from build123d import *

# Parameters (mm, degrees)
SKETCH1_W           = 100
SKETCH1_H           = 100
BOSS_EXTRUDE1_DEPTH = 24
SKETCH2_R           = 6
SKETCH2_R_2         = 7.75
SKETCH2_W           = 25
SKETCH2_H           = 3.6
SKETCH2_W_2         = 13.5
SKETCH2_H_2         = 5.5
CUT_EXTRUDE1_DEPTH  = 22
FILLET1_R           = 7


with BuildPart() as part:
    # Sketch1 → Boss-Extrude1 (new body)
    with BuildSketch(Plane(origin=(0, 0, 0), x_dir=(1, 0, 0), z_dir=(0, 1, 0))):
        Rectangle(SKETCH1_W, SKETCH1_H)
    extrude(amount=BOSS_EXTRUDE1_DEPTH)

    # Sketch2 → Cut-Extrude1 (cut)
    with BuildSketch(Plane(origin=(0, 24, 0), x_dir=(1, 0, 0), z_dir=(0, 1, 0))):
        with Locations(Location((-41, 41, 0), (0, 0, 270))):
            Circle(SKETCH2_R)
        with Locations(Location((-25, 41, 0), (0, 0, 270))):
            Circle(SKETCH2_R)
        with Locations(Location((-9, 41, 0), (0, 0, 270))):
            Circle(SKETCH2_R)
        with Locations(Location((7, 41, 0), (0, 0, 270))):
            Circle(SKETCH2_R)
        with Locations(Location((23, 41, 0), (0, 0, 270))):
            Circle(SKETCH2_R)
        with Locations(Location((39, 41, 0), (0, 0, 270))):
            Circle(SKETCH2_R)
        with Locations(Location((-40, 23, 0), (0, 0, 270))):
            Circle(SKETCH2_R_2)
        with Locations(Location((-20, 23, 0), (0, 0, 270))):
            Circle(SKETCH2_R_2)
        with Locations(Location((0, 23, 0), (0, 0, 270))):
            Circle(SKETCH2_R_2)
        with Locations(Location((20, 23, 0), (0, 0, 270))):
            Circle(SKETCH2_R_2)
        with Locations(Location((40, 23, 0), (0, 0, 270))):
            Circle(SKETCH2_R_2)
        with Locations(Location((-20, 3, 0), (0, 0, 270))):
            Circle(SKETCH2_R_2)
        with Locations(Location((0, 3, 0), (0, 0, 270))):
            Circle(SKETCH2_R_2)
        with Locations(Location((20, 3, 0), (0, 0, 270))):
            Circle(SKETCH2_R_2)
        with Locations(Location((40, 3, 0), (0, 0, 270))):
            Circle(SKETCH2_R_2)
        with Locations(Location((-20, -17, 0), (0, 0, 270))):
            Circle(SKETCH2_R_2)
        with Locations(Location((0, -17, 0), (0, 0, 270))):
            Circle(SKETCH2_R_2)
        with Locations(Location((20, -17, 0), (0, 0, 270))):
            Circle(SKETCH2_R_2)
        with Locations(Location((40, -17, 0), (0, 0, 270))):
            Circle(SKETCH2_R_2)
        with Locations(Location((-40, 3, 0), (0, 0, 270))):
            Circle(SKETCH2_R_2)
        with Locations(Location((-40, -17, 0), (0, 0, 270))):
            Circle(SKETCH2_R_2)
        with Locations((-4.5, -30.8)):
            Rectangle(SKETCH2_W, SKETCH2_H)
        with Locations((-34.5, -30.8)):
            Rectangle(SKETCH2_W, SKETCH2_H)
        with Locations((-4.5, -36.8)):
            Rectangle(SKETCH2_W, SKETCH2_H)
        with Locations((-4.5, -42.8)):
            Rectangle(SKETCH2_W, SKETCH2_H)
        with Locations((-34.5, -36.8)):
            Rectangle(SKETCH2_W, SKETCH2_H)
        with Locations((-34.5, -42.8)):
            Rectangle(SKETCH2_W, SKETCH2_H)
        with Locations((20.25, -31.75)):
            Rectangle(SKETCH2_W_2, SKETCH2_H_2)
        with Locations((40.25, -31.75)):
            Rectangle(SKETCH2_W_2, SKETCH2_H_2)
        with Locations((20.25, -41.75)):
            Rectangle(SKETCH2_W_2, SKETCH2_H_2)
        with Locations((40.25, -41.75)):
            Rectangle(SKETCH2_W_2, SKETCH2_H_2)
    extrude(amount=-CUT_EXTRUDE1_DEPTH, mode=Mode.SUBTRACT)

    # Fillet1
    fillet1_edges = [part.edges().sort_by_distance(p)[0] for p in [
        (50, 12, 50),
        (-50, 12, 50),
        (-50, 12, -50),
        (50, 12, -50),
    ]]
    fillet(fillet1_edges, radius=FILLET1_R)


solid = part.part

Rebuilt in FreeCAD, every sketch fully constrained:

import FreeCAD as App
import Part
import Sketcher


def edges_at(feature, points):
    """Names of the edges that pass closest to the given points."""
    edges = feature.Shape.Edges
    near = lambda p: min(range(len(edges)), key=lambda i: edges[i].distToShape(Part.Vertex(*p))[0])
    return sorted({f"Edge{near(p) + 1}" for p in points})

doc = App.newDocument("Part")
params = doc.addObject("Spreadsheet::Sheet", "Params")
for row, (alias, value) in enumerate([
    ("sketch1_width", "100 mm"),
    ("pad1_length", "24 mm"),
    ("sketch2_diameter", "12 mm"),
    ("sketch2_diameter2", "15.5 mm"),
    ("sketch2_width", "25 mm"),
    ("sketch2_width2", "13.5 mm"),
    ("sketch2_height", "3.6 mm"),
    ("pocket1_length", "22 mm"),
    ("fillet_radius", "7 mm"),
], start=1):
    params.set(f"A{row}", alias)
    params.set(f"B{row}", "=" + value)
    params.setAlias(f"B{row}", alias)

body = doc.addObject("PartDesign::Body", "Body")

sketch1 = doc.addObject("Sketcher::SketchObject", "Sketch")
body.addObject(sketch1)
sketch1.AttachmentSupport = (doc.XZ_Plane, [""])
sketch1.MapMode = "FlatFace"
sketch1.addGeometry(Part.LineSegment(App.Vector(-50, -50, 0), App.Vector(-50, 50, 0)), False)
sketch1.addGeometry(Part.LineSegment(App.Vector(-50, 50, 0), App.Vector(50, 50, 0)), False)
sketch1.addGeometry(Part.LineSegment(App.Vector(50, 50, 0), App.Vector(50, -50, 0)), False)
sketch1.addGeometry(Part.LineSegment(App.Vector(50, -50, 0), App.Vector(-50, -50, 0)), False)
sketch1.addConstraint(Sketcher.Constraint("Coincident", 0, 2, 1, 1))
sketch1.addConstraint(Sketcher.Constraint("Coincident", 1, 2, 2, 1))
sketch1.addConstraint(Sketcher.Constraint("Coincident", 2, 2, 3, 1))
sketch1.addConstraint(Sketcher.Constraint("Coincident", 3, 2, 0, 1))
sketch1.addConstraint(Sketcher.Constraint("Vertical", 0))
sketch1.addConstraint(Sketcher.Constraint("Horizontal", 1))
sketch1.addConstraint(Sketcher.Constraint("Vertical", 2))
sketch1.addConstraint(Sketcher.Constraint("Horizontal", 3))
sketch1.addConstraint(Sketcher.Constraint("Symmetric", 0, 2, 2, 2, -1, 1))
sketch1.addConstraint(Sketcher.Constraint("Equal", 3, 0))
sketch1.addConstraint(Sketcher.Constraint("DistanceX", 1, 1, 1, 2, 100.0))
sketch1.setExpression("Constraints[10]", "Params.sketch1_width")
pad1 = doc.addObject("PartDesign::Pad", "Pad")
body.addObject(pad1)
pad1.Profile = sketch1
pad1.setExpression("Length", "Params.pad1_length")
pad1.Reversed = True

sketch2 = doc.addObject("Sketcher::SketchObject", "Sketch001")
body.addObject(sketch2)
sketch2.AttachmentSupport = (doc.XZ_Plane, [""])
sketch2.MapMode = "FlatFace"
sketch2.AttachmentOffset = App.Placement(App.Vector(0, 0, -24), App.Rotation())
sketch2.addGeometry(Part.Circle(App.Vector(-41, -41, 0), App.Vector(0, 0, 1), 6), False)
sketch2.addGeometry(Part.Circle(App.Vector(-25, -41, 0), App.Vector(0, 0, 1), 6), False)
sketch2.addGeometry(Part.Circle(App.Vector(-9, -41, 0), App.Vector(0, 0, 1), 6), False)
sketch2.addGeometry(Part.Circle(App.Vector(7, -41, 0), App.Vector(0, 0, 1), 6), False)
sketch2.addGeometry(Part.Circle(App.Vector(23, -41, 0), App.Vector(0, 0, 1), 6), False)
sketch2.addGeometry(Part.Circle(App.Vector(39, -41, 0), App.Vector(0, 0, 1), 6), False)
sketch2.addGeometry(Part.Circle(App.Vector(-40, -23, 0), App.Vector(0, 0, 1), 7.8), False)
sketch2.addGeometry(Part.Circle(App.Vector(-20, -23, 0), App.Vector(0, 0, 1), 7.8), False)
sketch2.addGeometry(Part.Circle(App.Vector(0, -23, 0), App.Vector(0, 0, 1), 7.8), False)
sketch2.addGeometry(Part.Circle(App.Vector(20, -23, 0), App.Vector(0, 0, 1), 7.8), False)
sketch2.addGeometry(Part.Circle(App.Vector(40, -23, 0), App.Vector(0, 0, 1), 7.8), False)
sketch2.addGeometry(Part.Circle(App.Vector(-20, -3, 0), App.Vector(0, 0, 1), 7.8), False)
sketch2.addGeometry(Part.Circle(App.Vector(0, -3, 0), App.Vector(0, 0, 1), 7.8), False)
sketch2.addGeometry(Part.Circle(App.Vector(20, -3, 0), App.Vector(0, 0, 1), 7.8), False)
sketch2.addGeometry(Part.Circle(App.Vector(40, -3, 0), App.Vector(0, 0, 1), 7.8), False)
sketch2.addGeometry(Part.Circle(App.Vector(-20, 17, 0), App.Vector(0, 0, 1), 7.8), False)
sketch2.addGeometry(Part.Circle(App.Vector(0, 17, 0), App.Vector(0, 0, 1), 7.8), False)
sketch2.addGeometry(Part.Circle(App.Vector(20, 17, 0), App.Vector(0, 0, 1), 7.8), False)
sketch2.addGeometry(Part.Circle(App.Vector(40, 17, 0), App.Vector(0, 0, 1), 7.8), False)
sketch2.addGeometry(Part.Circle(App.Vector(-40, -3, 0), App.Vector(0, 0, 1), 7.8), False)
sketch2.addGeometry(Part.Circle(App.Vector(-40, 17, 0), App.Vector(0, 0, 1), 7.8), False)
sketch2.addGeometry(Part.LineSegment(App.Vector(-17, 29, 0), App.Vector(-17, 32.6, 0)), False)
sketch2.addGeometry(Part.LineSegment(App.Vector(-17, 32.6, 0), App.Vector(8, 32.6, 0)), False)
sketch2.addGeometry(Part.LineSegment(App.Vector(8, 32.6, 0), App.Vector(8, 29, 0)), False)
sketch2.addGeometry(Part.LineSegment(App.Vector(8, 29, 0), App.Vector(-17, 29, 0)), False)
sketch2.addGeometry(Part.LineSegment(App.Vector(-47, 29, 0), App.Vector(-47, 32.6, 0)), False)
sketch2.addGeometry(Part.LineSegment(App.Vector(-47, 32.6, 0), App.Vector(-22, 32.6, 0)), False)
sketch2.addGeometry(Part.LineSegment(App.Vector(-22, 32.6, 0), App.Vector(-22, 29, 0)), False)
sketch2.addGeometry(Part.LineSegment(App.Vector(-22, 29, 0), App.Vector(-47, 29, 0)), False)
sketch2.addGeometry(Part.LineSegment(App.Vector(-17, 35, 0), App.Vector(-17, 38.6, 0)), False)
sketch2.addGeometry(Part.LineSegment(App.Vector(-17, 38.6, 0), App.Vector(8, 38.6, 0)), False)
sketch2.addGeometry(Part.LineSegment(App.Vector(8, 38.6, 0), App.Vector(8, 35, 0)), False)
sketch2.addGeometry(Part.LineSegment(App.Vector(8, 35, 0), App.Vector(-17, 35, 0)), False)
sketch2.addGeometry(Part.LineSegment(App.Vector(-17, 41, 0), App.Vector(-17, 44.6, 0)), False)
sketch2.addGeometry(Part.LineSegment(App.Vector(-17, 44.6, 0), App.Vector(8, 44.6, 0)), False)
sketch2.addGeometry(Part.LineSegment(App.Vector(8, 44.6, 0), App.Vector(8, 41, 0)), False)
sketch2.addGeometry(Part.LineSegment(App.Vector(8, 41, 0), App.Vector(-17, 41, 0)), False)
sketch2.addGeometry(Part.LineSegment(App.Vector(-47, 35, 0), App.Vector(-47, 38.6, 0)), False)
sketch2.addGeometry(Part.LineSegment(App.Vector(-47, 38.6, 0), App.Vector(-22, 38.6, 0)), False)
sketch2.addGeometry(Part.LineSegment(App.Vector(-22, 38.6, 0), App.Vector(-22, 35, 0)), False)
sketch2.addGeometry(Part.LineSegment(App.Vector(-22, 35, 0), App.Vector(-47, 35, 0)), False)
sketch2.addGeometry(Part.LineSegment(App.Vector(-47, 41, 0), App.Vector(-47, 44.6, 0)), False)
sketch2.addGeometry(Part.LineSegment(App.Vector(-47, 44.6, 0), App.Vector(-22, 44.6, 0)), False)
sketch2.addGeometry(Part.LineSegment(App.Vector(-22, 44.6, 0), App.Vector(-22, 41, 0)), False)
sketch2.addGeometry(Part.LineSegment(App.Vector(-22, 41, 0), App.Vector(-47, 41, 0)), False)
sketch2.addGeometry(Part.LineSegment(App.Vector(13.5, 29, 0), App.Vector(13.5, 34.5, 0)), False)
sketch2.addGeometry(Part.LineSegment(App.Vector(13.5, 34.5, 0), App.Vector(27, 34.5, 0)), False)
sketch2.addGeometry(Part.LineSegment(App.Vector(27, 34.5, 0), App.Vector(27, 29, 0)), False)
sketch2.addGeometry(Part.LineSegment(App.Vector(27, 29, 0), App.Vector(13.5, 29, 0)), False)
sketch2.addGeometry(Part.LineSegment(App.Vector(33.5, 29, 0), App.Vector(33.5, 34.5, 0)), False)
sketch2.addGeometry(Part.LineSegment(App.Vector(33.5, 34.5, 0), App.Vector(47, 34.5, 0)), False)
sketch2.addGeometry(Part.LineSegment(App.Vector(47, 34.5, 0), App.Vector(47, 29, 0)), False)
sketch2.addGeometry(Part.LineSegment(App.Vector(47, 29, 0), App.Vector(33.5, 29, 0)), False)
sketch2.addGeometry(Part.LineSegment(App.Vector(13.5, 39, 0), App.Vector(13.5, 44.5, 0)), False)
sketch2.addGeometry(Part.LineSegment(App.Vector(13.5, 44.5, 0), App.Vector(27, 44.5, 0)), False)
sketch2.addGeometry(Part.LineSegment(App.Vector(27, 44.5, 0), App.Vector(27, 39, 0)), False)
sketch2.addGeometry(Part.LineSegment(App.Vector(27, 39, 0), App.Vector(13.5, 39, 0)), False)
sketch2.addGeometry(Part.LineSegment(App.Vector(33.5, 39, 0), App.Vector(33.5, 44.5, 0)), False)
sketch2.addGeometry(Part.LineSegment(App.Vector(33.5, 44.5, 0), App.Vector(47, 44.5, 0)), False)
sketch2.addGeometry(Part.LineSegment(App.Vector(47, 44.5, 0), App.Vector(47, 39, 0)), False)
sketch2.addGeometry(Part.LineSegment(App.Vector(47, 39, 0), App.Vector(33.5, 39, 0)), False)
sketch2.addConstraint(Sketcher.Constraint("Coincident", 21, 2, 22, 1))
sketch2.addConstraint(Sketcher.Constraint("Coincident", 22, 2, 23, 1))
sketch2.addConstraint(Sketcher.Constraint("Coincident", 23, 2, 24, 1))
sketch2.addConstraint(Sketcher.Constraint("Coincident", 24, 2, 21, 1))
sketch2.addConstraint(Sketcher.Constraint("Coincident", 25, 2, 26, 1))
sketch2.addConstraint(Sketcher.Constraint("Coincident", 26, 2, 27, 1))
sketch2.addConstraint(Sketcher.Constraint("Coincident", 27, 2, 28, 1))
sketch2.addConstraint(Sketcher.Constraint("Coincident", 28, 2, 25, 1))
sketch2.addConstraint(Sketcher.Constraint("Coincident", 29, 2, 30, 1))
sketch2.addConstraint(Sketcher.Constraint("Coincident", 30, 2, 31, 1))
sketch2.addConstraint(Sketcher.Constraint("Coincident", 31, 2, 32, 1))
sketch2.addConstraint(Sketcher.Constraint("Coincident", 32, 2, 29, 1))
sketch2.addConstraint(Sketcher.Constraint("Coincident", 33, 2, 34, 1))
sketch2.addConstraint(Sketcher.Constraint("Coincident", 34, 2, 35, 1))
sketch2.addConstraint(Sketcher.Constraint("Coincident", 35, 2, 36, 1))
sketch2.addConstraint(Sketcher.Constraint("Coincident", 36, 2, 33, 1))
sketch2.addConstraint(Sketcher.Constraint("Coincident", 37, 2, 38, 1))
sketch2.addConstraint(Sketcher.Constraint("Coincident", 38, 2, 39, 1))
sketch2.addConstraint(Sketcher.Constraint("Coincident", 39, 2, 40, 1))
sketch2.addConstraint(Sketcher.Constraint("Coincident", 40, 2, 37, 1))
sketch2.addConstraint(Sketcher.Constraint("Coincident", 41, 2, 42, 1))
sketch2.addConstraint(Sketcher.Constraint("Coincident", 42, 2, 43, 1))
sketch2.addConstraint(Sketcher.Constraint("Coincident", 43, 2, 44, 1))
sketch2.addConstraint(Sketcher.Constraint("Coincident", 44, 2, 41, 1))
sketch2.addConstraint(Sketcher.Constraint("Coincident", 45, 2, 46, 1))
sketch2.addConstraint(Sketcher.Constraint("Coincident", 46, 2, 47, 1))
sketch2.addConstraint(Sketcher.Constraint("Coincident", 47, 2, 48, 1))
sketch2.addConstraint(Sketcher.Constraint("Coincident", 48, 2, 45, 1))
sketch2.addConstraint(Sketcher.Constraint("Coincident", 49, 2, 50, 1))
sketch2.addConstraint(Sketcher.Constraint("Coincident", 50, 2, 51, 1))
sketch2.addConstraint(Sketcher.Constraint("Coincident", 51, 2, 52, 1))
sketch2.addConstraint(Sketcher.Constraint("Coincident", 52, 2, 49, 1))
sketch2.addConstraint(Sketcher.Constraint("Coincident", 53, 2, 54, 1))
sketch2.addConstraint(Sketcher.Constraint("Coincident", 54, 2, 55, 1))
sketch2.addConstraint(Sketcher.Constraint("Coincident", 55, 2, 56, 1))
sketch2.addConstraint(Sketcher.Constraint("Coincident", 56, 2, 53, 1))
sketch2.addConstraint(Sketcher.Constraint("Coincident", 57, 2, 58, 1))
sketch2.addConstraint(Sketcher.Constraint("Coincident", 58, 2, 59, 1))
sketch2.addConstraint(Sketcher.Constraint("Coincident", 59, 2, 60, 1))
sketch2.addConstraint(Sketcher.Constraint("Coincident", 60, 2, 57, 1))
sketch2.addConstraint(Sketcher.Constraint("Vertical", 21))
sketch2.addConstraint(Sketcher.Constraint("Horizontal", 22))
sketch2.addConstraint(Sketcher.Constraint("Vertical", 23))
sketch2.addConstraint(Sketcher.Constraint("Horizontal", 24))
sketch2.addConstraint(Sketcher.Constraint("Vertical", 25))
sketch2.addConstraint(Sketcher.Constraint("Horizontal", 26))
sketch2.addConstraint(Sketcher.Constraint("Vertical", 27))
sketch2.addConstraint(Sketcher.Constraint("Horizontal", 28))
sketch2.addConstraint(Sketcher.Constraint("Vertical", 29))
sketch2.addConstraint(Sketcher.Constraint("Horizontal", 30))
sketch2.addConstraint(Sketcher.Constraint("Vertical", 31))
sketch2.addConstraint(Sketcher.Constraint("Horizontal", 32))
sketch2.addConstraint(Sketcher.Constraint("Vertical", 33))
sketch2.addConstraint(Sketcher.Constraint("Horizontal", 34))
sketch2.addConstraint(Sketcher.Constraint("Vertical", 35))
sketch2.addConstraint(Sketcher.Constraint("Horizontal", 36))
sketch2.addConstraint(Sketcher.Constraint("Vertical", 37))
sketch2.addConstraint(Sketcher.Constraint("Horizontal", 38))
sketch2.addConstraint(Sketcher.Constraint("Vertical", 39))
sketch2.addConstraint(Sketcher.Constraint("Horizontal", 40))
sketch2.addConstraint(Sketcher.Constraint("Vertical", 41))
sketch2.addConstraint(Sketcher.Constraint("Horizontal", 42))
sketch2.addConstraint(Sketcher.Constraint("Vertical", 43))
sketch2.addConstraint(Sketcher.Constraint("Horizontal", 44))
sketch2.addConstraint(Sketcher.Constraint("Vertical", 45))
sketch2.addConstraint(Sketcher.Constraint("Horizontal", 46))
sketch2.addConstraint(Sketcher.Constraint("Vertical", 47))
sketch2.addConstraint(Sketcher.Constraint("Horizontal", 48))
sketch2.addConstraint(Sketcher.Constraint("Vertical", 49))
sketch2.addConstraint(Sketcher.Constraint("Horizontal", 50))
sketch2.addConstraint(Sketcher.Constraint("Vertical", 51))
sketch2.addConstraint(Sketcher.Constraint("Horizontal", 52))
sketch2.addConstraint(Sketcher.Constraint("Vertical", 53))
sketch2.addConstraint(Sketcher.Constraint("Horizontal", 54))
sketch2.addConstraint(Sketcher.Constraint("Vertical", 55))
sketch2.addConstraint(Sketcher.Constraint("Horizontal", 56))
sketch2.addConstraint(Sketcher.Constraint("Vertical", 57))
sketch2.addConstraint(Sketcher.Constraint("Horizontal", 58))
sketch2.addConstraint(Sketcher.Constraint("Vertical", 59))
sketch2.addConstraint(Sketcher.Constraint("Horizontal", 60))
sketch2.addConstraint(Sketcher.Constraint("Equal", 0, 1))
sketch2.addConstraint(Sketcher.Constraint("Equal", 1, 2))
sketch2.addConstraint(Sketcher.Constraint("Equal", 2, 3))
sketch2.addConstraint(Sketcher.Constraint("Equal", 3, 4))
sketch2.addConstraint(Sketcher.Constraint("Equal", 4, 5))
sketch2.addConstraint(Sketcher.Constraint("Equal", 6, 7))
sketch2.addConstraint(Sketcher.Constraint("Equal", 7, 8))
sketch2.addConstraint(Sketcher.Constraint("Equal", 8, 9))
sketch2.addConstraint(Sketcher.Constraint("Equal", 9, 10))
sketch2.addConstraint(Sketcher.Constraint("Equal", 10, 11))
sketch2.addConstraint(Sketcher.Constraint("Equal", 11, 12))
sketch2.addConstraint(Sketcher.Constraint("Equal", 12, 13))
sketch2.addConstraint(Sketcher.Constraint("Equal", 13, 14))
sketch2.addConstraint(Sketcher.Constraint("Equal", 14, 15))
sketch2.addConstraint(Sketcher.Constraint("Equal", 15, 16))
sketch2.addConstraint(Sketcher.Constraint("Equal", 16, 17))
sketch2.addConstraint(Sketcher.Constraint("Equal", 17, 18))
sketch2.addConstraint(Sketcher.Constraint("Equal", 18, 19))
sketch2.addConstraint(Sketcher.Constraint("Equal", 19, 20))
sketch2.addConstraint(Sketcher.Constraint("Symmetric", 7, 3, 9, 3, -2))
sketch2.addConstraint(Sketcher.Constraint("Symmetric", 6, 3, 10, 3, -2))
sketch2.addConstraint(Sketcher.Constraint("Symmetric", 11, 3, 13, 3, -2))
sketch2.addConstraint(Sketcher.Constraint("Symmetric", 15, 3, 17, 3, -2))
sketch2.addConstraint(Sketcher.Constraint("Symmetric", 14, 3, 19, 3, -2))
sketch2.addConstraint(Sketcher.Constraint("Symmetric", 18, 3, 20, 3, -2))
sketch2.addConstraint(Sketcher.Constraint("Symmetric", 28, 2, 51, 2, -2))
sketch2.addConstraint(Sketcher.Constraint("PointOnObject", 8, 3, -2))
sketch2.addConstraint(Sketcher.Constraint("PointOnObject", 12, 3, -2))
sketch2.addConstraint(Sketcher.Constraint("PointOnObject", 16, 3, -2))
sketch2.addConstraint(Sketcher.Constraint("Horizontal", 0, 3, 1, 3))
sketch2.addConstraint(Sketcher.Constraint("Horizontal", 1, 3, 2, 3))
sketch2.addConstraint(Sketcher.Constraint("Horizontal", 2, 3, 3, 3))
sketch2.addConstraint(Sketcher.Constraint("Horizontal", 3, 3, 4, 3))
sketch2.addConstraint(Sketcher.Constraint("Horizontal", 4, 3, 5, 3))
sketch2.addConstraint(Sketcher.Constraint("Horizontal", 6, 3, 7, 3))
sketch2.addConstraint(Sketcher.Constraint("Horizontal", 7, 3, 8, 3))
sketch2.addConstraint(Sketcher.Constraint("Horizontal", 11, 3, 12, 3))
sketch2.addConstraint(Sketcher.Constraint("Horizontal", 13, 3, 14, 3))
sketch2.addConstraint(Sketcher.Constraint("Horizontal", 15, 3, 16, 3))
sketch2.addConstraint(Sketcher.Constraint("Horizontal", 17, 3, 18, 3))
sketch2.addConstraint(Sketcher.Constraint("Horizontal", 22, 2, 25, 2))
sketch2.addConstraint(Sketcher.Constraint("Horizontal", 24, 2, 27, 2))
sketch2.addConstraint(Sketcher.Constraint("Horizontal", 30, 2, 37, 2))
sketch2.addConstraint(Sketcher.Constraint("Horizontal", 32, 2, 39, 2))
sketch2.addConstraint(Sketcher.Constraint("Horizontal", 34, 2, 41, 2))
sketch2.addConstraint(Sketcher.Constraint("Horizontal", 36, 2, 43, 2))
sketch2.addConstraint(Sketcher.Constraint("Horizontal", 28, 2, 47, 2))
sketch2.addConstraint(Sketcher.Constraint("Horizontal", 46, 2, 49, 2))
sketch2.addConstraint(Sketcher.Constraint("Horizontal", 54, 2, 57, 2))
sketch2.addConstraint(Sketcher.Constraint("Horizontal", 56, 2, 59, 2))
sketch2.addConstraint(Sketcher.Constraint("Vertical", 7, 3, 11, 3))
sketch2.addConstraint(Sketcher.Constraint("Vertical", 10, 3, 14, 3))
sketch2.addConstraint(Sketcher.Constraint("Vertical", 11, 3, 15, 3))
sketch2.addConstraint(Sketcher.Constraint("Vertical", 14, 3, 18, 3))
sketch2.addConstraint(Sketcher.Constraint("Vertical", 24, 2, 29, 2))
sketch2.addConstraint(Sketcher.Constraint("Vertical", 23, 2, 30, 2))
sketch2.addConstraint(Sketcher.Constraint("Vertical", 32, 2, 33, 2))
sketch2.addConstraint(Sketcher.Constraint("Vertical", 31, 2, 34, 2))
sketch2.addConstraint(Sketcher.Constraint("Vertical", 28, 2, 37, 2))
sketch2.addConstraint(Sketcher.Constraint("Vertical", 27, 2, 38, 2))
sketch2.addConstraint(Sketcher.Constraint("Vertical", 40, 2, 41, 2))
sketch2.addConstraint(Sketcher.Constraint("Vertical", 39, 2, 42, 2))
sketch2.addConstraint(Sketcher.Constraint("Vertical", 48, 2, 53, 2))
sketch2.addConstraint(Sketcher.Constraint("Vertical", 47, 2, 54, 2))
sketch2.addConstraint(Sketcher.Constraint("Vertical", 52, 2, 57, 2))
sketch2.addConstraint(Sketcher.Constraint("Vertical", 51, 2, 58, 2))
sketch2.addConstraint(Sketcher.Constraint("Equal", 24, 26))
sketch2.addConstraint(Sketcher.Constraint("Equal", 48, 50))
sketch2.addConstraint(Sketcher.Constraint("Equal", 27, 29))
sketch2.addConstraint(Sketcher.Constraint("Equal", 31, 33))
sketch2.addConstraint(Sketcher.Constraint("Equal", 51, 53))
sketch2.addConstraint(Sketcher.Constraint("Diameter", 0, 12.0))
sketch2.addConstraint(Sketcher.Constraint("Diameter", 6, 15.5))
sketch2.addConstraint(Sketcher.Constraint("DistanceX", 22, 1, 22, 2, 25.0))
sketch2.addConstraint(Sketcher.Constraint("DistanceX", 46, 1, 46, 2, 13.5))
sketch2.addConstraint(Sketcher.Constraint("DistanceY", 21, 1, 21, 2, 3.6))
sketch2.addConstraint(Sketcher.Constraint("DistanceY", 45, 1, 45, 2, 5.5))
sketch2.addConstraint(Sketcher.Constraint("DistanceX", 0, 3, -1, 1, 41.0))
sketch2.addConstraint(Sketcher.Constraint("DistanceY", 0, 3, -1, 1, 41.0))
sketch2.addConstraint(Sketcher.Constraint("DistanceX", 1, 3, -1, 1, 25.0))
sketch2.addConstraint(Sketcher.Constraint("DistanceX", 2, 3, -1, 1, 9.0))
sketch2.addConstraint(Sketcher.Constraint("DistanceX", -1, 1, 3, 3, 7.0))
sketch2.addConstraint(Sketcher.Constraint("DistanceX", -1, 1, 4, 3, 23.0))
sketch2.addConstraint(Sketcher.Constraint("DistanceX", -1, 1, 5, 3, 39.0))
sketch2.addConstraint(Sketcher.Constraint("DistanceX", 6, 3, -1, 1, 40.0))
sketch2.addConstraint(Sketcher.Constraint("DistanceY", 6, 3, -1, 1, 23.0))
sketch2.addConstraint(Sketcher.Constraint("DistanceX", 7, 3, -1, 1, 20.0))
sketch2.addConstraint(Sketcher.Constraint("DistanceY", 11, 3, -1, 1, 3.0))
sketch2.addConstraint(Sketcher.Constraint("DistanceY", -1, 1, 15, 3, 17.0))
sketch2.addConstraint(Sketcher.Constraint("DistanceX", 21, 2, -1, 1, 17.0))
sketch2.addConstraint(Sketcher.Constraint("DistanceY", -1, 1, 23, 2, 29.0))
sketch2.addConstraint(Sketcher.Constraint("DistanceX", 25, 2, -1, 1, 47.0))
sketch2.addConstraint(Sketcher.Constraint("DistanceY", -1, 1, 31, 2, 35.0))
sketch2.addConstraint(Sketcher.Constraint("DistanceY", -1, 1, 35, 2, 41.0))
sketch2.addConstraint(Sketcher.Constraint("DistanceX", -1, 1, 46, 2, 27.0))
sketch2.addConstraint(Sketcher.Constraint("DistanceY", -1, 1, 55, 2, 39.0))
sketch2.setExpression("Constraints[151]", "Params.sketch2_diameter")
sketch2.setExpression("Constraints[152]", "Params.sketch2_diameter2")
sketch2.setExpression("Constraints[153]", "Params.sketch2_width")
sketch2.setExpression("Constraints[154]", "Params.sketch2_width2")
sketch2.setExpression("Constraints[155]", "Params.sketch2_height")
pocket1 = doc.addObject("PartDesign::Pocket", "Pocket")
body.addObject(pocket1)
pocket1.Profile = sketch2
pocket1.setExpression("Length", "Params.pocket1_length")
pocket1.Reversed = True
doc.recompute()

fillet = doc.addObject("PartDesign::Fillet", "Fillet")
body.addObject(fillet)
fillet.Base = (pocket1, edges_at(pocket1, [
    (50, 12, 50),
    (-50, 12, 50),
    (-50, 12, -50),
    (50, 12, -50),
]))
fillet.setExpression("Radius", "Params.fillet_radius")

doc.recompute()
